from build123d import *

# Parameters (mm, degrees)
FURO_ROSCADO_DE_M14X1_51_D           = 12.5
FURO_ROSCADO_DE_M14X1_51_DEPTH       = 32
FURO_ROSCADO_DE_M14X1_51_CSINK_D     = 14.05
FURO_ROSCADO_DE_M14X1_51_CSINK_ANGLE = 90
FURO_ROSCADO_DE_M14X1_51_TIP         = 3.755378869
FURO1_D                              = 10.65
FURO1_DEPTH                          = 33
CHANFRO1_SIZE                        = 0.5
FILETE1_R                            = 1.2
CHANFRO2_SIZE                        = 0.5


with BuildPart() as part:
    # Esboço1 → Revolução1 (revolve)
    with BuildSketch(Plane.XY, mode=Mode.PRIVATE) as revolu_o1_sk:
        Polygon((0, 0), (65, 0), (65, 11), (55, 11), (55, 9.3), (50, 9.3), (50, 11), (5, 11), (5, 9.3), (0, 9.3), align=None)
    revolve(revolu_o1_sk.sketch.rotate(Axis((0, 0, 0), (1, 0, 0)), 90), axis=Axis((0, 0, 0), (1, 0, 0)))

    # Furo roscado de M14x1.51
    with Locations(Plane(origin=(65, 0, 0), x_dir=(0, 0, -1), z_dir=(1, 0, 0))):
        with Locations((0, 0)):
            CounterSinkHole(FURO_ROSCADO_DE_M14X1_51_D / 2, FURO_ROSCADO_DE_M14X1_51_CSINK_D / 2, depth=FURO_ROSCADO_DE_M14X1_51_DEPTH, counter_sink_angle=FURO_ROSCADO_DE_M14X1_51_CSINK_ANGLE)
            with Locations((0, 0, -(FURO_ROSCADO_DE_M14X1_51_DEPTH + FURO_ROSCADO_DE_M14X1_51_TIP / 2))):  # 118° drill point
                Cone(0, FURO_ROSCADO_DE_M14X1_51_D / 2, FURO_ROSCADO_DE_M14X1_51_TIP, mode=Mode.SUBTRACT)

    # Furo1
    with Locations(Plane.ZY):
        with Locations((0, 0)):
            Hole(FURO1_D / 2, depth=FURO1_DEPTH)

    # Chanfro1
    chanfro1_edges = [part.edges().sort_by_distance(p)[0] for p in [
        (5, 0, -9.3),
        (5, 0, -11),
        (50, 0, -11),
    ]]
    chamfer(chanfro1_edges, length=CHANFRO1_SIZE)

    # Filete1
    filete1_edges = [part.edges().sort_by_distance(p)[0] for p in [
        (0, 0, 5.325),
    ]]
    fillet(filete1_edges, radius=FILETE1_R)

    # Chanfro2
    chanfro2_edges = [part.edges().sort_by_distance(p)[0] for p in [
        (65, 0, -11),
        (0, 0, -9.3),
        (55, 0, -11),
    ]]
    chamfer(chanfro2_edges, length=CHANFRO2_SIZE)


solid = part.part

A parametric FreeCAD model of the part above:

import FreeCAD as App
import Part
import Sketcher

V = App.Vector


def edges_at(feature, points):
    """Names of the edges that pass closest to the given points."""
    edges = feature.Shape.Edges
    near = lambda p: min(range(len(edges)), key=lambda i: edges[i].distToShape(Part.Vertex(*p))[0])
    return sorted({f"Edge{near(p) + 1}" for p in points})

doc = App.newDocument("Part")
params = doc.addObject("Spreadsheet::Sheet", "Params")
for row, (alias, value) in enumerate([
    ("sketch1_width", "65 mm"),
    ("sketch1_width2", "10 mm"),
    ("sketch1_width3", "5 mm"),
    ("sketch1_height", "11 mm"),
    ("sketch1_height2", "1.7 mm"),
    ("revolution_angle", "360 deg"),
    ("sketch2_diameter", "12.5 mm"),
    ("hole_diameter", "12.5 mm"),
    ("hole_depth", "32 mm"),
    ("hole_csink_diameter", "14.05 mm"),
    ("sketch3_diameter", "10.65 mm"),
    ("hole2_diameter", "10.65 mm"),
    ("hole2_depth", "33 mm"),
    ("chamfer_size", "0.5 mm"),
    ("fillet_radius", "1.2 mm"),
    ("chamfer2_size", "0.5 mm"),
], start=1):
    params.set(f"A{row}", alias)
    params.set(f"B{row}", "=" + value)
    params.setAlias(f"B{row}", alias)

body = doc.addObject("PartDesign::Body", "Body")

sketch1 = body.newObject("Sketcher::SketchObject", "Sketch")
sketch1.AttachmentSupport = (doc.getObject("XY_Plane"), [""])
sketch1.MapMode = "FlatFace"
sketch1.addGeometry([
    Part.LineSegment(V(0, 0, 0), V(65, 0, 0)),
    Part.LineSegment(V(65, 0, 0), V(65, 11, 0)),
    Part.LineSegment(V(65, 11, 0), V(55, 11, 0)),
    Part.LineSegment(V(55, 11, 0), V(55, 9.3, 0)),
    Part.LineSegment(V(55, 9.3, 0), V(50, 9.3, 0)),
    Part.LineSegment(V(50, 9.3, 0), V(50, 11, 0)),
    Part.LineSegment(V(50, 11, 0), V(5, 11, 0)),
    Part.LineSegment(V(5, 11, 0), V(5, 9.3, 0)),
    Part.LineSegment(V(5, 9.3, 0), V(0, 9.3, 0)),
    Part.LineSegment(V(0, 9.3, 0), V(0, 0, 0)),
], False)
sketch1.addConstraint([
    Sketcher.Constraint("Coincident", 0, 2, 1, 1),
    Sketcher.Constraint("Coincident", 1, 2, 2, 1),
    Sketcher.Constraint("Coincident", 2, 2, 3, 1),
    Sketcher.Constraint("Coincident", 3, 2, 4, 1),
    Sketcher.Constraint("Coincident", 4, 2, 5, 1),
    Sketcher.Constraint("Coincident", 5, 2, 6, 1),
    Sketcher.Constraint("Coincident", 6, 2, 7, 1),
    Sketcher.Constraint("Coincident", 7, 2, 8, 1),
    Sketcher.Constraint("Coincident", 8, 2, 9, 1),
    Sketcher.Constraint("Coincident", 9, 2, 0, 1),
    Sketcher.Constraint("Horizontal", 0),
    Sketcher.Constraint("Vertical", 1),
    Sketcher.Constraint("Horizontal", 2),
    Sketcher.Constraint("Vertical", 3),
    Sketcher.Constraint("Horizontal", 4),
    Sketcher.Constraint("Vertical", 5),
    Sketcher.Constraint("Horizontal", 6),
    Sketcher.Constraint("Vertical", 7),
    Sketcher.Constraint("Horizontal", 8),
    Sketcher.Constraint("Vertical", 9),
    Sketcher.Constraint("Coincident", 9, 2, -1, 1),
    Sketcher.Constraint("Horizontal", 2, 2, 5, 2),
    Sketcher.Constraint("Horizontal", 4, 2, 7, 2),
    Sketcher.Constraint("Equal", 4, 8),
    Sketcher.Constraint("DistanceX", 0, 1, 0, 2, 65.0),
    Sketcher.Constraint("DistanceX", 2, 2, 2, 1, 10.0),
    Sketcher.Constraint("DistanceX", 4, 2, 4, 1, 5.0),
    Sketcher.Constraint("DistanceY", 1, 1, 1, 2, 11.0),
    Sketcher.Constraint("DistanceY", 3, 2, 3, 1, 1.7),
])
sketch1.setExpression("Constraints[24]", "Params.sketch1_width")
sketch1.setExpression("Constraints[25]", "Params.sketch1_width2")
sketch1.setExpression("Constraints[26]", "Params.sketch1_width3")
sketch1.setExpression("Constraints[27]", "Params.sketch1_height")
sketch1.setExpression("Constraints[28]", "Params.sketch1_height2")
revolution = body.newObject("PartDesign::Revolution", "Revolution")
revolution.Profile = sketch1
revolution.ReferenceAxis = (sketch1, ["H_Axis"])
revolution.setExpression("Angle", "Params.revolution_angle")

sketch2 = body.newObject("Sketcher::SketchObject", "Sketch001")
sketch2.AttachmentSupport = (doc.getObject("YZ_Plane"), [""])
sketch2.MapMode = "FlatFace"
sketch2.AttachmentOffset = App.Placement(V(0, 0, 65), App.Rotation())
sketch2.addGeometry(Part.Circle(V(0, 0, 0), V(0, 0, 1), 6), False)
sketch2.addConstraint([
    Sketcher.Constraint("Coincident", 0, 3, -1, 1),
    Sketcher.Constraint("Diameter", 0, 12.5),
])
sketch2.setExpression("Constraints[1]", "Params.sketch2_diameter")
doc.recompute()
hole = body.newObject("PartDesign::Hole", "Hole")
hole.Profile = sketch2
hole.ThreadType = "None"
hole.setExpression("Diameter", "Params.hole_diameter")
hole.DepthType = "Dimension"
hole.setExpression("Depth", "Params.hole_depth")
hole.DrillPoint = "Angled"
hole.DrillPointAngle = 118
hole.HoleCutType = "Countersink"
hole.setExpression("HoleCutDiameter", "Params.hole_csink_diameter")
hole.HoleCutCountersinkAngle = 90

sketch3 = body.newObject("Sketcher::SketchObject", "Sketch002")
sketch3.AttachmentSupport = (doc.getObject("YZ_Plane"), [""])
sketch3.MapMode = "FlatFace"
sketch3.addGeometry(Part.Circle(V(0, 0, 0), V(0, 0, 1), 5), False)
sketch3.addConstraint([
    Sketcher.Constraint("Coincident", 0, 3, -1, 1),
    Sketcher.Constraint("Diameter", 0, 10.65),
])
sketch3.setExpression("Constraints[1]", "Params.sketch3_diameter")
doc.recompute()
hole2 = body.newObject("PartDesign::Hole", "Hole001")
hole2.Profile = sketch3
hole2.ThreadType = "None"
hole2.setExpression("Diameter", "Params.hole2_diameter")
hole2.DepthType = "Dimension"
hole2.setExpression("Depth", "Params.hole2_depth")
hole2.DrillPoint = "Flat"
hole2.Reversed = True
doc.recompute()

chamfer = body.newObject("PartDesign::Chamfer", "Chamfer")
chamfer.Base = (hole2, edges_at(hole2, [(5, 0, -9.3), (5, 0, -11), (50, 0, -11)]))
chamfer.setExpression("Size", "Params.chamfer_size")
doc.recompute()

fillet = body.newObject("PartDesign::Fillet", "Fillet")
fillet.Base = (chamfer, edges_at(chamfer, [(0, 0, 5.325)]))
fillet.setExpression("Radius", "Params.fillet_radius")
doc.recompute()

chamfer2 = body.newObject("PartDesign::Chamfer", "Chamfer001")
chamfer2.Base = (fillet, edges_at(fillet, [(65, 0, -11), (0, 0, -9.3), (55, 0, -11)]))
chamfer2.setExpression("Size", "Params.chamfer2_size")

doc.recompute()
